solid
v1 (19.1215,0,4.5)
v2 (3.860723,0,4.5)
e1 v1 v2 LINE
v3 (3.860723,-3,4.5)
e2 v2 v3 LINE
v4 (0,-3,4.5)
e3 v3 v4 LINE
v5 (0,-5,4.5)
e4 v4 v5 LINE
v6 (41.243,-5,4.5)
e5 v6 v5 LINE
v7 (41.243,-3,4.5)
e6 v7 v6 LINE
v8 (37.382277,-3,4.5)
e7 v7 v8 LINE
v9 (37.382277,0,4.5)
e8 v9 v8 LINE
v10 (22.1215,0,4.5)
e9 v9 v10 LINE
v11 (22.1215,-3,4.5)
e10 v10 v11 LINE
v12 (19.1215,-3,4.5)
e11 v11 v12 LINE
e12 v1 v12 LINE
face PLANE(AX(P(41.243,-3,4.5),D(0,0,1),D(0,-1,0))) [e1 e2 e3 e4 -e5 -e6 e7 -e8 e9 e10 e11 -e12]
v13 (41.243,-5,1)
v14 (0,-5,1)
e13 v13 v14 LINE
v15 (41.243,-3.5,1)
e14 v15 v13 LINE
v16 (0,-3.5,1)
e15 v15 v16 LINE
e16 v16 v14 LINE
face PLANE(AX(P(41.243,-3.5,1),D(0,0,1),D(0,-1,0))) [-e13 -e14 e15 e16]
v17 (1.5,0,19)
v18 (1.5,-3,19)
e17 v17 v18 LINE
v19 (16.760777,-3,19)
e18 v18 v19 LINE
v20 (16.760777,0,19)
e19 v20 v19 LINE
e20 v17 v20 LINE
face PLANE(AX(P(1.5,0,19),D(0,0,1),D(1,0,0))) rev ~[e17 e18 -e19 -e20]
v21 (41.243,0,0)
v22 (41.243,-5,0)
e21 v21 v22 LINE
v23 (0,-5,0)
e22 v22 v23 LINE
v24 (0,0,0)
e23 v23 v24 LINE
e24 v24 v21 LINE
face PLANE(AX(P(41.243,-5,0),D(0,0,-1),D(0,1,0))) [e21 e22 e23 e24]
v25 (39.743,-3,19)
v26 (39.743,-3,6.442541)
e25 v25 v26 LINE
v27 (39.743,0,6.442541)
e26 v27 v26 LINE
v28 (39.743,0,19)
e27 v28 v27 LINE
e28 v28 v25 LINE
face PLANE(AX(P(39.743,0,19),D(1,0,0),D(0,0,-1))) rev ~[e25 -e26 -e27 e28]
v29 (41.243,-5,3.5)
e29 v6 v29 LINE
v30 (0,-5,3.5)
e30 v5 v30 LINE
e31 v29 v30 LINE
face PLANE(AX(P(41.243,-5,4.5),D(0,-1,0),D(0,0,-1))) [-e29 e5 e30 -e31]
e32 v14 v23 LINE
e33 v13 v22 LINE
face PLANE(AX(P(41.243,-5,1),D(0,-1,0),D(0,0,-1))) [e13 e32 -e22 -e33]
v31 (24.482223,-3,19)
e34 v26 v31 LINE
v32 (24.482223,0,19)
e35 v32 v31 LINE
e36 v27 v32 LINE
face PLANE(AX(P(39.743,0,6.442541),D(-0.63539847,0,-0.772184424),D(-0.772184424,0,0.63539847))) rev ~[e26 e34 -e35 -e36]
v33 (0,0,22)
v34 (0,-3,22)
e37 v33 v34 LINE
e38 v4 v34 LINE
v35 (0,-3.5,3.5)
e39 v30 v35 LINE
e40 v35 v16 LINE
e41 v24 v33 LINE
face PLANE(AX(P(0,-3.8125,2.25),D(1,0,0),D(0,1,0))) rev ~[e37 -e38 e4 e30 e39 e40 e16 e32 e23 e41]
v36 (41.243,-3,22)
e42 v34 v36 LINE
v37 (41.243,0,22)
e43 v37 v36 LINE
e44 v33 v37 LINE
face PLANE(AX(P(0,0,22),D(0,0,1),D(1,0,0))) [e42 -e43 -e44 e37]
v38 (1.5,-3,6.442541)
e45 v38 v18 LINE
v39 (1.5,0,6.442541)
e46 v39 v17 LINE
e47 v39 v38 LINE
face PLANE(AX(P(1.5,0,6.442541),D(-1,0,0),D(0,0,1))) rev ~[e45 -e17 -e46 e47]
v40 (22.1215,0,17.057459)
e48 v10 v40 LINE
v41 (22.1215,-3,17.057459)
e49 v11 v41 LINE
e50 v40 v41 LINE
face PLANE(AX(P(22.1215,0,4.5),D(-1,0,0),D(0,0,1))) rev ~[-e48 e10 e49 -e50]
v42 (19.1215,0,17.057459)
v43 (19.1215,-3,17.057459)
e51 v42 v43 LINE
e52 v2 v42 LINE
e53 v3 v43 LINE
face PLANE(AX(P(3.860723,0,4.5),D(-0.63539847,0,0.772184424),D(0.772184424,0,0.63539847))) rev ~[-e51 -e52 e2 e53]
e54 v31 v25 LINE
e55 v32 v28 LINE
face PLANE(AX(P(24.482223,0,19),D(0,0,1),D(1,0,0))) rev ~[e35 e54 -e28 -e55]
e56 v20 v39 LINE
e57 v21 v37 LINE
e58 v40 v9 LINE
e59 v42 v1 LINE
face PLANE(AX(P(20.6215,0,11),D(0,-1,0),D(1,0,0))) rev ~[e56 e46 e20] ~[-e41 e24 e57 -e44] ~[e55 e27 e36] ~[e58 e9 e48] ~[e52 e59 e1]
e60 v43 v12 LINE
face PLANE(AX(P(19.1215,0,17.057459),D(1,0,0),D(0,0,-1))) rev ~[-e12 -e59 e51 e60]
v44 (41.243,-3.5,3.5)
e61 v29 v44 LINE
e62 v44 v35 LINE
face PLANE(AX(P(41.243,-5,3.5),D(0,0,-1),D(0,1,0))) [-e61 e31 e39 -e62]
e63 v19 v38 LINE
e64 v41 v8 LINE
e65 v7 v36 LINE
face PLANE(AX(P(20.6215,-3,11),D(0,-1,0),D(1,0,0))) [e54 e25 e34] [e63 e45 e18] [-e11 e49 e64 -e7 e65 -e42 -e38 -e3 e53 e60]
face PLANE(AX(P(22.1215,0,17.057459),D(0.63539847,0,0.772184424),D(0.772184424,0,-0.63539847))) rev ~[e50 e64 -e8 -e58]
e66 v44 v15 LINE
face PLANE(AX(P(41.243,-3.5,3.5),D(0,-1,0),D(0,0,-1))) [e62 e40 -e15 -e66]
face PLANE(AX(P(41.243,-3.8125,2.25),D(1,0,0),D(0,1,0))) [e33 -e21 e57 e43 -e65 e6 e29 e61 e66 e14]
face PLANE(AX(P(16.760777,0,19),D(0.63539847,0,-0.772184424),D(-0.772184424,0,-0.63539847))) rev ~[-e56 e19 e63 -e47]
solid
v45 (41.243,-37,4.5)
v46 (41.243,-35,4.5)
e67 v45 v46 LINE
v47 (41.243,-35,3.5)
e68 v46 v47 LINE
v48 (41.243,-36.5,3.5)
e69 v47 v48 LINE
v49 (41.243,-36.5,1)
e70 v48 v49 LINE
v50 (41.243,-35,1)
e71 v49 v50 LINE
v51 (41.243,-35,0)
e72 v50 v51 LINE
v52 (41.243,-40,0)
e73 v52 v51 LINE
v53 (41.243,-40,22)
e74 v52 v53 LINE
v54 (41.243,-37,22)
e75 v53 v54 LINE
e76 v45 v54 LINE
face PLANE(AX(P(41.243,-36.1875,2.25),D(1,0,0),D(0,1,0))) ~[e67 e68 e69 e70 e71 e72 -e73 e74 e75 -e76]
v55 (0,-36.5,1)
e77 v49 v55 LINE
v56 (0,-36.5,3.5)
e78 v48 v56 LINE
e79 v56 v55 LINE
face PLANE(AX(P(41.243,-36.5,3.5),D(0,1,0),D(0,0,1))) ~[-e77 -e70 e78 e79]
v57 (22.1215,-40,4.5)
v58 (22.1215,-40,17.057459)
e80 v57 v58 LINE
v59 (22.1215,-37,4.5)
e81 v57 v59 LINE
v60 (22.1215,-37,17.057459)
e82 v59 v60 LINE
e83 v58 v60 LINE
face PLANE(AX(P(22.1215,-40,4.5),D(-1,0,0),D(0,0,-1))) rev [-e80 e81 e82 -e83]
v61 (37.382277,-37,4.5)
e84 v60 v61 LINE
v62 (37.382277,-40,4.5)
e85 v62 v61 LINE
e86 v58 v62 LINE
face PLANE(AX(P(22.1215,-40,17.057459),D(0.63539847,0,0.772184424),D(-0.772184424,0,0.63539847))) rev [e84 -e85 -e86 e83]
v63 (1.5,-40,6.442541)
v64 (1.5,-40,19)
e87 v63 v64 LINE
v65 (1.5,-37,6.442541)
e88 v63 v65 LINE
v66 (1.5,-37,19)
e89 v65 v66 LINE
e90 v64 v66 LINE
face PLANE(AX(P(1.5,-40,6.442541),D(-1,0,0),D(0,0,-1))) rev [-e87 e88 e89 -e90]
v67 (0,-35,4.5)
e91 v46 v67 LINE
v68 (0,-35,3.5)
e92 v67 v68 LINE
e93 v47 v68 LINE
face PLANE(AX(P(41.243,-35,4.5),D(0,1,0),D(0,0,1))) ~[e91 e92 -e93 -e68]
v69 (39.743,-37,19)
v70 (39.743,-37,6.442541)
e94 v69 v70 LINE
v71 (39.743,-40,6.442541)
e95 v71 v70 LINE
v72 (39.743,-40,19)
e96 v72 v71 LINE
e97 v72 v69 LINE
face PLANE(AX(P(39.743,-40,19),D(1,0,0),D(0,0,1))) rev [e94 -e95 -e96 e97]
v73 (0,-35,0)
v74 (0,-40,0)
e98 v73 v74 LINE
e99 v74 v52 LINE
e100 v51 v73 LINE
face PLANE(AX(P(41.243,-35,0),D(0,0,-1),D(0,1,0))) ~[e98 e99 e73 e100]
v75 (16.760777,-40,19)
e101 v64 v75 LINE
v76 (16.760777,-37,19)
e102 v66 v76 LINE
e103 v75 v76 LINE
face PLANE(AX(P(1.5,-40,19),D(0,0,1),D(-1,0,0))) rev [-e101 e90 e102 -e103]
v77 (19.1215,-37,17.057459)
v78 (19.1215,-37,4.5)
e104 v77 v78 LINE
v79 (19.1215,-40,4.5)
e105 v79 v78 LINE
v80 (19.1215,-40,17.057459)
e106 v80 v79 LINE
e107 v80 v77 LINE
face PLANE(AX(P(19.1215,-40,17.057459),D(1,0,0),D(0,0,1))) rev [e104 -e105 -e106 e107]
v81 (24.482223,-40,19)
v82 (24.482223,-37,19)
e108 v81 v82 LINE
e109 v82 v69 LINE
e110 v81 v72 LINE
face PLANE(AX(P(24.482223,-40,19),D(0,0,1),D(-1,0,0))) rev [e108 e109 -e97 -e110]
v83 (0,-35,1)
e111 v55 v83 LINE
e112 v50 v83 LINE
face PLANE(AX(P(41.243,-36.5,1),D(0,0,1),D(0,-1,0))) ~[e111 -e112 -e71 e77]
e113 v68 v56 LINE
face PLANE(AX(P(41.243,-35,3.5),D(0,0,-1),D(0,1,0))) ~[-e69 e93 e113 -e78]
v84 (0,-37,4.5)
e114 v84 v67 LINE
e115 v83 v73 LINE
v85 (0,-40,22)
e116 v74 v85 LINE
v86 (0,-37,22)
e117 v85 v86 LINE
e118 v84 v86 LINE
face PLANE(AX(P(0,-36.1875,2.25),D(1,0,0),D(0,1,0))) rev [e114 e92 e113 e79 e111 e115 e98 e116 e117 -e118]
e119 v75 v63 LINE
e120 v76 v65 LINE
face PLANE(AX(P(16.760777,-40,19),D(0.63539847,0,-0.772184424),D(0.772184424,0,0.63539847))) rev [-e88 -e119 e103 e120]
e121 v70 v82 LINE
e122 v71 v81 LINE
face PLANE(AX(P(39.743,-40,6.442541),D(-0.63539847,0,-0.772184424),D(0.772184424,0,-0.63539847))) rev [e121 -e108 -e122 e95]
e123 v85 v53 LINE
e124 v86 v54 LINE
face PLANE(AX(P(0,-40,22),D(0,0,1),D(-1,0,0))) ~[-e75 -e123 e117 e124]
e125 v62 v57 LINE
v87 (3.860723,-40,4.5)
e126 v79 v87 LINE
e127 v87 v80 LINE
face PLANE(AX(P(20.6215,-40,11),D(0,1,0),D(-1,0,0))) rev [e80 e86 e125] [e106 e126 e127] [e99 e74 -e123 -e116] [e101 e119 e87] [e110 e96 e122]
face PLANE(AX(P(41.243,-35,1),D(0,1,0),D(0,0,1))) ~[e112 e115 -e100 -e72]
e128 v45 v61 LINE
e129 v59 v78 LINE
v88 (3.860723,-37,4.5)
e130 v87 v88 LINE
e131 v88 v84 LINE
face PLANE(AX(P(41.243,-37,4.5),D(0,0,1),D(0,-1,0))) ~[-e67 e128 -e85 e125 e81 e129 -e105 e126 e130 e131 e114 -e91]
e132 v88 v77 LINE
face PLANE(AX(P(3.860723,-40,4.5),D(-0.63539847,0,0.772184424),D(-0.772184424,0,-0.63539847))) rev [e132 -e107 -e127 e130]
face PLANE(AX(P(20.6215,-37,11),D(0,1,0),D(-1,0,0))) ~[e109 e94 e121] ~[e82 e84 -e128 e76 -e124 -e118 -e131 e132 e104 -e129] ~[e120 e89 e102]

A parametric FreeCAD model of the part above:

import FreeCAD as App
import Part
import Sketcher

V = App.Vector


def add_polygon(sketch, points):
    """Adds a closed chain of lines whose ends are joined by coincident constraints."""
    first, n = sketch.GeometryCount, len(points)
    for a, b in zip(points, points[1:] + points[:1]):
        sketch.addGeometry(Part.LineSegment(App.Vector(*a, 0), App.Vector(*b, 0)), False)
    for i in range(n):
        sketch.addConstraint(Sketcher.Constraint("Coincident", first + i, 2, first + (i + 1) % n, 1))

doc = App.newDocument("Part")
params = doc.addObject("Spreadsheet::Sheet", "Params")
for row, (alias, value) in enumerate([
    ("sketch1_height", "22 mm"),
    ("pad1_length", "3 mm"),
    ("sketch2_width", "2 mm"),
    ("sketch2_height", "1 mm"),
    ("sketch2_width2", "1.5 mm"),
    ("sketch2_height2", "4.5 mm"),
    ("pad2_length", "41.243 mm"),
], start=1):
    params.set(f"A{row}", alias)
    params.set(f"B{row}", "=" + value)
    params.setAlias(f"B{row}", alias)

body = doc.addObject("PartDesign::Body", "Body")

sketch1 = doc.addObject("Sketcher::SketchObject", "Sketch")
body.addObject(sketch1)
sketch1.AttachmentSupport = (doc.XZ_Plane, [""])
sketch1.MapMode = "FlatFace"
add_polygon(sketch1, [(0, 22), (0, 0), (41, 0), (41, 22)])
add_polygon(sketch1, [(19, 4), (4, 4), (19, 17)])
add_polygon(sketch1, [(22, 4), (22, 17), (37, 4)])
add_polygon(sketch1, [(17, 19), (2, 6), (2, 19)])
add_polygon(sketch1, [(40, 6), (24, 19), (40, 19)])
sketch1.addConstraint([
    Sketcher.Constraint("Vertical", 0),
    Sketcher.Constraint("Horizontal", 1),
    Sketcher.Constraint("Vertical", 2),
    Sketcher.Constraint("Horizontal", 3),
    Sketcher.Constraint("Horizontal", 4),
    Sketcher.Constraint("Vertical", 6),
    Sketcher.Constraint("Vertical", 7),
    Sketcher.Constraint("Horizontal", 9),
    Sketcher.Constraint("Vertical", 11),
    Sketcher.Constraint("Horizontal", 12),
    Sketcher.Constraint("Horizontal", 14),
    Sketcher.Constraint("Vertical", 15),
    Sketcher.Constraint("Coincident", 0, 2, -1, 1),
    Sketcher.Constraint("Parallel", 5, 10),
    Sketcher.Constraint("Parallel", 8, 13),
    Sketcher.Constraint("Horizontal", 5, 2, 7, 2),
    Sketcher.Constraint("Horizontal", 6, 2, 8, 2),
    Sketcher.Constraint("Horizontal", 12, 2, 13, 2),
    Sketcher.Constraint("Horizontal", 10, 2, 15, 2),
    Sketcher.Constraint("Equal", 4, 9),
    Sketcher.Constraint("Equal", 9, 12),
    Sketcher.Constraint("DistanceY", 0, 2, 0, 1, 22.0),
    Sketcher.Constraint("DistanceY", -1, 1, 11, 2, 19.0),
    Sketcher.Constraint("DistanceX", 5, 2, 7, 2, 3.0),
    Sketcher.Constraint("DistanceY", -1, 1, 4, 2, 4.5),
    Sketcher.Constraint("DistanceX", -1, 1, 10, 2, 1.5),
    Sketcher.Constraint("DistanceX", 14, 2, 2, 2, 1.5),
    Sketcher.Constraint("DistanceX", 1, 1, 1, 2, 41.243),
    Sketcher.Constraint("DistanceY", 6, 2, 6, 1, 12.557459),
    Sketcher.Constraint("DistanceX", -1, 1, 5, 2, 19.1215),
    Sketcher.Constraint("DistanceX", 4, 2, 4, 1, 15.260777),
])
sketch1.setExpression("Constraints[37]", "Params.sketch1_height")
pad1 = doc.addObject("PartDesign::Pad", "Pad")
body.addObject(pad1)
pad1.Profile = sketch1
pad1.setExpression("Length", "Params.pad1_length")

sketch2 = doc.addObject("Sketcher::SketchObject", "Sketch001")
body.addObject(sketch2)
sketch2.AttachmentSupport = (doc.YZ_Plane, [""])
sketch2.MapMode = "FlatFace"
sketch2.AttachmentOffset = App.Placement(V(0, 0, 41.243), App.Rotation())
add_polygon(sketch2, [(-5, 0), (-3, 0), (-3, 4.5), (-5, 4.5), (-5, 3.5), (-3.5, 3.5), (-3.5, 1), (-5, 1)])
sketch2.addConstraint([
    Sketcher.Constraint("Horizontal", 0),
    Sketcher.Constraint("Vertical", 1),
    Sketcher.Constraint("Horizontal", 2),
    Sketcher.Constraint("Vertical", 3),
    Sketcher.Constraint("Horizontal", 4),
    Sketcher.Constraint("Vertical", 5),
    Sketcher.Constraint("Horizontal", 6),
    Sketcher.Constraint("Vertical", 7),
    Sketcher.Constraint("PointOnObject", 0, 2, -1),
    Sketcher.Constraint("Vertical", 3, 2, 6, 2),
    Sketcher.Constraint("Equal", 3, 7),
    Sketcher.Constraint("DistanceX", 0, 1, 0, 2, 2.0),
    Sketcher.Constraint("DistanceY", 3, 2, 3, 1, 1.0),
    Sketcher.Constraint("DistanceX", 4, 1, 4, 2, 1.5),
    Sketcher.Constraint("DistanceY", 1, 1, 1, 2, 4.5),
    Sketcher.Constraint("DistanceX", 0, 2, -1, 1, 3.0),
])
sketch2.setExpression("Constraints[19]", "Params.sketch2_width")
sketch2.setExpression("Constraints[20]", "Params.sketch2_height")
sketch2.setExpression("Constraints[21]", "Params.sketch2_width2")
sketch2.setExpression("Constraints[22]", "Params.sketch2_height2")
pad2 = doc.addObject("PartDesign::Pad", "Pad001")
body.addObject(pad2)
pad2.Profile = sketch2
pad2.setExpression("Length", "Params.pad2_length")
pad2.Reversed = True
body2 = doc.addObject("PartDesign::Body", "Body001")
doc.recompute()

mirroring = doc.addObject("Part::Mirroring", "Mirroring")
mirroring.Source = body
mirroring.Base = V(0, -20, 0)
mirroring.Normal = V(0, -1, 0)
body2.BaseFeature = mirroring
doc.recompute()
mirroring.Visibility = False

doc.recompute()
